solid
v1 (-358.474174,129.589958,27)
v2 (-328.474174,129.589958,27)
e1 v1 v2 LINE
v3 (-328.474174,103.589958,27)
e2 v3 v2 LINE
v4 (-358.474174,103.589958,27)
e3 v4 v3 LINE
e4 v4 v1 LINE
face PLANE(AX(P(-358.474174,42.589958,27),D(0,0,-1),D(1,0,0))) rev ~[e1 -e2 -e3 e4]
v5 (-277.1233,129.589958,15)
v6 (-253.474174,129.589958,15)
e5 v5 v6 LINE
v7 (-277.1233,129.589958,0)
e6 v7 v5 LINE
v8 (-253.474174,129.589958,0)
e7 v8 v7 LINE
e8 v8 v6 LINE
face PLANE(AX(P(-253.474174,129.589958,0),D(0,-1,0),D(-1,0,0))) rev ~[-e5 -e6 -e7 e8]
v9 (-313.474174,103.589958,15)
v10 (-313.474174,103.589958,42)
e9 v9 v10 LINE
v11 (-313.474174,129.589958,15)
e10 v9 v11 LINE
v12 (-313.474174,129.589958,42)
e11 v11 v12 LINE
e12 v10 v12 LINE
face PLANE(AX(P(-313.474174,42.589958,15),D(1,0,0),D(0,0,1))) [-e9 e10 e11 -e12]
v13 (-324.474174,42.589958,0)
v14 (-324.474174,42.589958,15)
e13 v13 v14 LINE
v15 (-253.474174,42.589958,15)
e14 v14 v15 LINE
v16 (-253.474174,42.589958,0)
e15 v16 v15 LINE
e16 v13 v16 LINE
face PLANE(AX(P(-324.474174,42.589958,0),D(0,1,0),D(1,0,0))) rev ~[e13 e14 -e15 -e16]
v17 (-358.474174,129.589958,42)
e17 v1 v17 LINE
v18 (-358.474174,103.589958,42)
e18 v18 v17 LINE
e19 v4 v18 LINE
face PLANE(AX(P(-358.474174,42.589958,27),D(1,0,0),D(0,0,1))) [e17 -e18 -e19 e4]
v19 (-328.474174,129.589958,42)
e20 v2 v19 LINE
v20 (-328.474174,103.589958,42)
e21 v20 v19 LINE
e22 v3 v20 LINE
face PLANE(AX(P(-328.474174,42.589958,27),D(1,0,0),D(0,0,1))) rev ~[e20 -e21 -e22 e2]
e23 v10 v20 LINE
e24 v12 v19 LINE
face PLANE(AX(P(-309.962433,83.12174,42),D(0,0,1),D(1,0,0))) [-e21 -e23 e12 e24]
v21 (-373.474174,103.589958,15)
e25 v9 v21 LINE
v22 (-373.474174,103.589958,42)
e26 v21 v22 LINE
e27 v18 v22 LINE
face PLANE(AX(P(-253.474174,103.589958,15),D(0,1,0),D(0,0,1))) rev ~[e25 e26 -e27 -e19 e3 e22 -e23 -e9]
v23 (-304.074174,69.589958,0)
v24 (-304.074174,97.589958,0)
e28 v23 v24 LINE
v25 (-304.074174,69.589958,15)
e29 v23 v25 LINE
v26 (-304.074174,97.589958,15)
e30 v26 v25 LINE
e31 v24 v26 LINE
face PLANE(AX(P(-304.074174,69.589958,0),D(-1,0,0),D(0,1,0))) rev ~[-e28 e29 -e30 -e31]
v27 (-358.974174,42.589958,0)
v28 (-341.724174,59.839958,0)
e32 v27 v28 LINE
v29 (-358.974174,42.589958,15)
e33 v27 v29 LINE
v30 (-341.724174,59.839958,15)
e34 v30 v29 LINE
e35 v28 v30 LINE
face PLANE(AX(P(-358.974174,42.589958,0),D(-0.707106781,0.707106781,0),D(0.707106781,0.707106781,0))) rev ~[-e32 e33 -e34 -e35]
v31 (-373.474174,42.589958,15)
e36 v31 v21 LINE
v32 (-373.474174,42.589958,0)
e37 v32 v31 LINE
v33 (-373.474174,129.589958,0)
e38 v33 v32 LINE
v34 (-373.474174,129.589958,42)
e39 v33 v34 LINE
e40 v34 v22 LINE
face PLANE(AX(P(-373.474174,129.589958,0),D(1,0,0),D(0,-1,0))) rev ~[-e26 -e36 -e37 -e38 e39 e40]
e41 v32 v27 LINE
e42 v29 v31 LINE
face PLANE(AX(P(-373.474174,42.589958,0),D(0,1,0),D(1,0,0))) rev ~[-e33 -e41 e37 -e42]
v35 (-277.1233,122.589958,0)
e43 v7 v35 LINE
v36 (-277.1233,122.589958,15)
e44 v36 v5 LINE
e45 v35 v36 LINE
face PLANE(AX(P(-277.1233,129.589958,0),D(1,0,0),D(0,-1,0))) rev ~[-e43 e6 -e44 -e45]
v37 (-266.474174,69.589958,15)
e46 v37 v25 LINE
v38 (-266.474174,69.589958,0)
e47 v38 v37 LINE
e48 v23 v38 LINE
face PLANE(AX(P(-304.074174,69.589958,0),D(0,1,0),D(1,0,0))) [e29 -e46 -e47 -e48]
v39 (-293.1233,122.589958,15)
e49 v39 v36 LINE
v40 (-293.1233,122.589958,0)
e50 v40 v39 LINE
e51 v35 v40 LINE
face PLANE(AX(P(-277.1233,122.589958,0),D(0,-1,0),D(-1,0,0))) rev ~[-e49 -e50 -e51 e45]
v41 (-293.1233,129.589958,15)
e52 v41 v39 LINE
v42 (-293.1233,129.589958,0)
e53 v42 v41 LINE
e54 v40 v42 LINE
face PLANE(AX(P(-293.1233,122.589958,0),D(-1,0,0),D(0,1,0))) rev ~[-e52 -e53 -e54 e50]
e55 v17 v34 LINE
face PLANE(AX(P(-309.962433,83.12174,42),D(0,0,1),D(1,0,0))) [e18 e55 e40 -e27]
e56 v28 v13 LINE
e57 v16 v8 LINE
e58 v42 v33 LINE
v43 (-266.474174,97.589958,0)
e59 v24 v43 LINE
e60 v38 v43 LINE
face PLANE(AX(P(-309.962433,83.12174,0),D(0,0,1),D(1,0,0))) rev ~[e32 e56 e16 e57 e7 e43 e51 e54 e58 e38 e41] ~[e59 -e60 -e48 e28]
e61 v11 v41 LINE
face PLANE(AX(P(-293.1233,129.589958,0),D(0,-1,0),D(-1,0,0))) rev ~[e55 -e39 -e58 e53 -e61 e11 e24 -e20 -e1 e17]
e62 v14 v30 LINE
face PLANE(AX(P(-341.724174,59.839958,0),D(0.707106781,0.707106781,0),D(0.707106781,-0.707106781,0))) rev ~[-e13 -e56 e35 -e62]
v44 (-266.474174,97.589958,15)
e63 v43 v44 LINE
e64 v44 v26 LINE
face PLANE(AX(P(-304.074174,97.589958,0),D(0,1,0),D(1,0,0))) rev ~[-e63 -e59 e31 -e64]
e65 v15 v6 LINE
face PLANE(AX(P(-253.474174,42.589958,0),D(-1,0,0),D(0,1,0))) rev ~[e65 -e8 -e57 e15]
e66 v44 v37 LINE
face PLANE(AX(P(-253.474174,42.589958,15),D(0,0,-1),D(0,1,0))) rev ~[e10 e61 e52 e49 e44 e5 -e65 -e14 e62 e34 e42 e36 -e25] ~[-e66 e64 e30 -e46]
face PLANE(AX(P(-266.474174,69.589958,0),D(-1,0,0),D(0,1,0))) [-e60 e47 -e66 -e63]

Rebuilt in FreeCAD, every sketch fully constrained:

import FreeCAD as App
import Part
import Sketcher
from FreeCAD import Vector

doc = App.newDocument("Part")
body = doc.addObject("PartDesign::Body", "Body")

sketch1 = body.newObject("Sketcher::SketchObject", "Sketch")
sketch1.AttachmentSupport = (doc.getObject("XY_Plane"), [""])
sketch1.MapMode = "FlatFace"
sketch1.addGeometry(Part.LineSegment(Vector(-373, 43, 0), Vector(-359, 43, 0)), False)
sketch1.addGeometry(Part.LineSegment(Vector(-359, 43, 0), Vector(-342, 60, 0)), False)
sketch1.addGeometry(Part.LineSegment(Vector(-342, 60, 0), Vector(-324, 43, 0)), False)
sketch1.addGeometry(Part.LineSegment(Vector(-324, 43, 0), Vector(-253, 43, 0)), False)
sketch1.addGeometry(Part.LineSegment(Vector(-253, 43, 0), Vector(-253, 130, 0)), False)
sketch1.addGeometry(Part.LineSegment(Vector(-253, 130, 0), Vector(-277, 130, 0)), False)
sketch1.addGeometry(Part.LineSegment(Vector(-277, 130, 0), Vector(-277, 123, 0)), False)
sketch1.addGeometry(Part.LineSegment(Vector(-277, 123, 0), Vector(-293, 123, 0)), False)
sketch1.addGeometry(Part.LineSegment(Vector(-293, 123, 0), Vector(-293, 130, 0)), False)
sketch1.addGeometry(Part.LineSegment(Vector(-293, 130, 0), Vector(-373, 130, 0)), False)
sketch1.addGeometry(Part.LineSegment(Vector(-373, 130, 0), Vector(-373, 43, 0)), False)
sketch1.addGeometry(Part.LineSegment(Vector(-266, 70, 0), Vector(-304, 70, 0)), False)
sketch1.addGeometry(Part.LineSegment(Vector(-304, 70, 0), Vector(-304, 98, 0)), False)
sketch1.addGeometry(Part.LineSegment(Vector(-304, 98, 0), Vector(-266, 98, 0)), False)
sketch1.addGeometry(Part.LineSegment(Vector(-266, 98, 0), Vector(-266, 70, 0)), False)
sketch1.addConstraint(Sketcher.Constraint("Coincident", 0, 2, 1, 1))
sketch1.addConstraint(Sketcher.Constraint("Coincident", 1, 2, 2, 1))
sketch1.addConstraint(Sketcher.Constraint("Coincident", 2, 2, 3, 1))
sketch1.addConstraint(Sketcher.Constraint("Coincident", 3, 2, 4, 1))
sketch1.addConstraint(Sketcher.Constraint("Coincident", 4, 2, 5, 1))
sketch1.addConstraint(Sketcher.Constraint("Coincident", 5, 2, 6, 1))
sketch1.addConstraint(Sketcher.Constraint("Coincident", 6, 2, 7, 1))
sketch1.addConstraint(Sketcher.Constraint("Coincident", 7, 2, 8, 1))
sketch1.addConstraint(Sketcher.Constraint("Coincident", 8, 2, 9, 1))
sketch1.addConstraint(Sketcher.Constraint("Coincident", 9, 2, 10, 1))
sketch1.addConstraint(Sketcher.Constraint("Coincident", 10, 2, 0, 1))
sketch1.addConstraint(Sketcher.Constraint("Coincident", 11, 2, 12, 1))
sketch1.addConstraint(Sketcher.Constraint("Coincident", 12, 2, 13, 1))
sketch1.addConstraint(Sketcher.Constraint("Coincident", 13, 2, 14, 1))
sketch1.addConstraint(Sketcher.Constraint("Coincident", 14, 2, 11, 1))
sketch1.addConstraint(Sketcher.Constraint("Horizontal", 0))
sketch1.addConstraint(Sketcher.Constraint("Horizontal", 3))
sketch1.addConstraint(Sketcher.Constraint("Vertical", 4))
sketch1.addConstraint(Sketcher.Constraint("Horizontal", 5))
sketch1.addConstraint(Sketcher.Constraint("Vertical", 6))
sketch1.addConstraint(Sketcher.Constraint("Horizontal", 7))
sketch1.addConstraint(Sketcher.Constraint("Vertical", 8))
sketch1.addConstraint(Sketcher.Constraint("Horizontal", 9))
sketch1.addConstraint(Sketcher.Constraint("Vertical", 10))
sketch1.addConstraint(Sketcher.Constraint("Horizontal", 11))
sketch1.addConstraint(Sketcher.Constraint("Vertical", 12))
sketch1.addConstraint(Sketcher.Constraint("Horizontal", 13))
sketch1.addConstraint(Sketcher.Constraint("Vertical", 14))
sketch1.addConstraint(Sketcher.Constraint("Perpendicular", 1, 2))
sketch1.addConstraint(Sketcher.Constraint("Horizontal", 0, 2, 2, 2))
sketch1.addConstraint(Sketcher.Constraint("Horizontal", 5, 2, 8, 2))
sketch1.addConstraint(Sketcher.Constraint("Equal", 1, 2))
sketch1.addConstraint(Sketcher.Constraint("DistanceX", 3, 1, 3, 2, 71.0))
sketch1.addConstraint(Sketcher.Constraint("DistanceX", 7, 2, 7, 1, 16.0))
sketch1.addConstraint(Sketcher.Constraint("DistanceY", 4, 1, 4, 2, 87.0))
sketch1.addConstraint(Sketcher.Constraint("DistanceY", 6, 2, 6, 1, 7.0))
sketch1.addConstraint(Sketcher.Constraint("DistanceY", 12, 1, 12, 2, 28.0))
sketch1.addConstraint(Sketcher.Constraint("DistanceX", 0, 1, 0, 2, 14.5))
sketch1.addConstraint(Sketcher.Constraint("DistanceX", 11, 2, 11, 1, 37.6))
sketch1.addConstraint(Sketcher.Constraint("DistanceX", 10, 2, 2, 2, 49.0))
sketch1.addConstraint(Sketcher.Constraint("DistanceY", 2, 2, 11, 2, 27.0))
sketch1.addConstraint(Sketcher.Constraint("DistanceX", 13, 2, 4, 2, 13.0))
sketch1.addConstraint(Sketcher.Constraint("DistanceX", 5, 2, -1, 1, 277.1233))
sketch1.addConstraint(Sketcher.Constraint("DistanceX", 5, 2, 5, 1, 23.649126))
sketch1.addConstraint(Sketcher.Constraint("DistanceY", -1, 1, 0, 2, 42.589958))
pad1 = body.newObject("PartDesign::Pad", "Pad")
pad1.Profile = sketch1
pad1.Length = 42

sketch2 = body.newObject("Sketcher::SketchObject", "Sketch001")
sketch2.AttachmentSupport = (doc.getObject("XZ_Plane"), [""])
sketch2.MapMode = "FlatFace"
sketch2.AttachmentOffset = App.Placement(Vector(0, 0, -42.589958), App.Rotation())
sketch2.addGeometry(Part.LineSegment(Vector(-358, 42, 0), Vector(-358, 27, 0)), False)
sketch2.addGeometry(Part.LineSegment(Vector(-358, 27, 0), Vector(-328, 27, 0)), False)
sketch2.addGeometry(Part.LineSegment(Vector(-328, 27, 0), Vector(-328, 42, 0)), False)
sketch2.addGeometry(Part.LineSegment(Vector(-328, 42, 0), Vector(-358, 42, 0)), False)
sketch2.addGeometry(Part.LineSegment(Vector(-313, 42, 0), Vector(-313, 15, 0)), False)
sketch2.addGeometry(Part.LineSegment(Vector(-313, 15, 0), Vector(-253, 15, 0)), False)
sketch2.addGeometry(Part.LineSegment(Vector(-253, 15, 0), Vector(-253, 42, 0)), False)
sketch2.addGeometry(Part.LineSegment(Vector(-253, 42, 0), Vector(-313, 42, 0)), False)
sketch2.addConstraint(Sketcher.Constraint("Coincident", 0, 2, 1, 1))
sketch2.addConstraint(Sketcher.Constraint("Coincident", 1, 2, 2, 1))
sketch2.addConstraint(Sketcher.Constraint("Coincident", 2, 2, 3, 1))
sketch2.addConstraint(Sketcher.Constraint("Coincident", 3, 2, 0, 1))
sketch2.addConstraint(Sketcher.Constraint("Coincident", 4, 2, 5, 1))
sketch2.addConstraint(Sketcher.Constraint("Coincident", 5, 2, 6, 1))
sketch2.addConstraint(Sketcher.Constraint("Coincident", 6, 2, 7, 1))
sketch2.addConstraint(Sketcher.Constraint("Coincident", 7, 2, 4, 1))
sketch2.addConstraint(Sketcher.Constraint("Vertical", 0))
sketch2.addConstraint(Sketcher.Constraint("Horizontal", 1))
sketch2.addConstraint(Sketcher.Constraint("Vertical", 2))
sketch2.addConstraint(Sketcher.Constraint("Horizontal", 3))
sketch2.addConstraint(Sketcher.Constraint("Vertical", 4))
sketch2.addConstraint(Sketcher.Constraint("Horizontal", 5))
sketch2.addConstraint(Sketcher.Constraint("Vertical", 6))
sketch2.addConstraint(Sketcher.Constraint("Horizontal", 7))
sketch2.addConstraint(Sketcher.Constraint("Horizontal", 3, 2, 6, 2))
sketch2.addConstraint(Sketcher.Constraint("DistanceX", 1, 1, 1, 2, 30.0))
sketch2.addConstraint(Sketcher.Constraint("DistanceX", 5, 1, 5, 2, 60.0))
sketch2.addConstraint(Sketcher.Constraint("DistanceY", 0, 2, 0, 1, 15.0))
sketch2.addConstraint(Sketcher.Constraint("DistanceY", 4, 2, 4, 1, 27.0))
sketch2.addConstraint(Sketcher.Constraint("DistanceY", -1, 1, 0, 2, 27.0))
sketch2.addConstraint(Sketcher.Constraint("DistanceX", 1, 2, 4, 2, 15.0))
sketch2.addConstraint(Sketcher.Constraint("DistanceX", 0, 2, -1, 1, 358.474174))
pocket1 = body.newObject("PartDesign::Pocket", "Pocket")
pocket1.Profile = sketch2
pocket1.Type = "ThroughAll"

sketch3 = body.newObject("Sketcher::SketchObject", "Sketch002")
sketch3.AttachmentSupport = (doc.getObject("YZ_Plane"), [""])
sketch3.MapMode = "FlatFace"
sketch3.AttachmentOffset = App.Placement(Vector(0, 0, -253.474174), App.Rotation())
sketch3.addGeometry(Part.LineSegment(Vector(43, 42, 0), Vector(43, 15, 0)), False)
sketch3.addGeometry(Part.LineSegment(Vector(43, 15, 0), Vector(104, 15, 0)), False)
sketch3.addGeometry(Part.LineSegment(Vector(104, 15, 0), Vector(104, 42, 0)), False)
sketch3.addGeometry(Part.LineSegment(Vector(104, 42, 0), Vector(43, 42, 0)), False)
sketch3.addConstraint(Sketcher.Constraint("Coincident", 0, 2, 1, 1))
sketch3.addConstraint(Sketcher.Constraint("Coincident", 1, 2, 2, 1))
sketch3.addConstraint(Sketcher.Constraint("Coincident", 2, 2, 3, 1))
sketch3.addConstraint(Sketcher.Constraint("Coincident", 3, 2, 0, 1))
sketch3.addConstraint(Sketcher.Constraint("Vertical", 0))
sketch3.addConstraint(Sketcher.Constraint("Horizontal", 1))
sketch3.addConstraint(Sketcher.Constraint("Vertical", 2))
sketch3.addConstraint(Sketcher.Constraint("Horizontal", 3))
sketch3.addConstraint(Sketcher.Constraint("DistanceX", 1, 1, 1, 2, 61.0))
sketch3.addConstraint(Sketcher.Constraint("DistanceY", 0, 2, 0, 1, 27.0))
sketch3.addConstraint(Sketcher.Constraint("DistanceY", -1, 1, 0, 2, 15.0))
sketch3.addConstraint(Sketcher.Constraint("DistanceX", -1, 1, 0, 2, 42.589958))
pocket2 = body.newObject("PartDesign::Pocket", "Pocket001")
pocket2.Profile = sketch3
pocket2.Type = "ThroughAll"

doc.recompute()
